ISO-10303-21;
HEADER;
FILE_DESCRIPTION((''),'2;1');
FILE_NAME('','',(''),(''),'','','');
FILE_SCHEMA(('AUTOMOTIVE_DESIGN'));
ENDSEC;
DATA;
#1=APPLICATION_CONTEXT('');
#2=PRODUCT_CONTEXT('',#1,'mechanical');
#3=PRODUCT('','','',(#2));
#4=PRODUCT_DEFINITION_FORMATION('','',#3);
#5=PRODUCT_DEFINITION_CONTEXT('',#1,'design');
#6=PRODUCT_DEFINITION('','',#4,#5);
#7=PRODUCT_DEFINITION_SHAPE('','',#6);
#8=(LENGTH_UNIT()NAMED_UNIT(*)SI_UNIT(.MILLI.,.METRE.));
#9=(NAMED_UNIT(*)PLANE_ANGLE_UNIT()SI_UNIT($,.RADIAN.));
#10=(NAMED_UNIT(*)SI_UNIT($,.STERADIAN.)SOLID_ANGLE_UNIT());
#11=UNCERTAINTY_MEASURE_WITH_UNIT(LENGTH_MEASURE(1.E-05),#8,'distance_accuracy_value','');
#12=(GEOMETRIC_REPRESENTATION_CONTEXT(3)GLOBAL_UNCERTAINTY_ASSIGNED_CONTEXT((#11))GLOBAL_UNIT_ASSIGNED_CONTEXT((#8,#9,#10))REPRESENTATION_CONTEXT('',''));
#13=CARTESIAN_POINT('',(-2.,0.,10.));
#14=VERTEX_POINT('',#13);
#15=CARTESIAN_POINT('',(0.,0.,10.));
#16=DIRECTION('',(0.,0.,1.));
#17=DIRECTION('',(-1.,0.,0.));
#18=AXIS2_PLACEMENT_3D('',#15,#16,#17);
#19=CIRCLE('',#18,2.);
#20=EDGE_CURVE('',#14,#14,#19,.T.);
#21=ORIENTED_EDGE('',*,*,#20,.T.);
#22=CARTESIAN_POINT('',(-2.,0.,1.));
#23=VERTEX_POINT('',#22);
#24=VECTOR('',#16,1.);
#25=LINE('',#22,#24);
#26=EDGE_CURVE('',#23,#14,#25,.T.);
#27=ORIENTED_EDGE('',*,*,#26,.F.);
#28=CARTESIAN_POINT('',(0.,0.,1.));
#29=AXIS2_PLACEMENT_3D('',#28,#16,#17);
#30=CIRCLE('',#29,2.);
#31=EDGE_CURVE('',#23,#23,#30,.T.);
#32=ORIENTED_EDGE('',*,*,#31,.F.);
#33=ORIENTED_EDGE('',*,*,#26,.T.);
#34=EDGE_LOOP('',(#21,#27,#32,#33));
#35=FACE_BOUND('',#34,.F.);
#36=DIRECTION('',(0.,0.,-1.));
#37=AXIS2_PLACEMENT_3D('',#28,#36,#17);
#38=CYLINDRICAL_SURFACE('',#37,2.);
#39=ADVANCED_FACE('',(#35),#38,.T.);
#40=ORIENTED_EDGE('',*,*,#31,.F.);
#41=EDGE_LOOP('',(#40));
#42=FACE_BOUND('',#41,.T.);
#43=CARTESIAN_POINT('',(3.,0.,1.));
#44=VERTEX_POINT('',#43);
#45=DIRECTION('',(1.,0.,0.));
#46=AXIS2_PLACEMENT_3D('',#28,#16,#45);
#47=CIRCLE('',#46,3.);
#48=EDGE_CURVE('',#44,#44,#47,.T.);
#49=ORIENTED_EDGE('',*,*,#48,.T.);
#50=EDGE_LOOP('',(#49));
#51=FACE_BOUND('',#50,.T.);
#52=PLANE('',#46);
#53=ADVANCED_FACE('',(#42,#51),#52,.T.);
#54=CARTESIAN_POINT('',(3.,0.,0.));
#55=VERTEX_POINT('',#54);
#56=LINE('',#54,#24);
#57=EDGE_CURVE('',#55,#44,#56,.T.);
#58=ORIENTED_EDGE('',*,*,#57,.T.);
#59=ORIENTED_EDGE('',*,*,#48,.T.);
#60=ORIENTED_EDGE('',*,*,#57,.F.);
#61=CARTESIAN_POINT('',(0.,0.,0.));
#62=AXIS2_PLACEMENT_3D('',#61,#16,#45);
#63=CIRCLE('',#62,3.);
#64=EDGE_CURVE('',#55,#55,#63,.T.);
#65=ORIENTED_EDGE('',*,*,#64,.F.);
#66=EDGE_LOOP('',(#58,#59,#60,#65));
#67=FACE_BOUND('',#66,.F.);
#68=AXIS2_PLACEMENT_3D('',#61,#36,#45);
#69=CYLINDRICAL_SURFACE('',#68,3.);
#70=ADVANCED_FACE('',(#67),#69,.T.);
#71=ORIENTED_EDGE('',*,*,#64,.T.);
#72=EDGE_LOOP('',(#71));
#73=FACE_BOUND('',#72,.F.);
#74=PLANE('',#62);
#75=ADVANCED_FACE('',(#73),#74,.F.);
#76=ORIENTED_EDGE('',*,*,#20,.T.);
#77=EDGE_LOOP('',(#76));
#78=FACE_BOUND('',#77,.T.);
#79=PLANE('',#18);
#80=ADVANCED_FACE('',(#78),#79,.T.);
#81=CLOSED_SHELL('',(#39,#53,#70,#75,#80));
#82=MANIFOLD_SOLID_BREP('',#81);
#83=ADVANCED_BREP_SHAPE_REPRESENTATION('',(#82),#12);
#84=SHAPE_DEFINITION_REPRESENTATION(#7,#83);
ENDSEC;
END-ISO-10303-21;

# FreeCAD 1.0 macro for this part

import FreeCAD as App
import Part
import Sketcher

V = App.Vector

doc = App.newDocument("Part")
params = doc.addObject("Spreadsheet::Sheet", "Params")
for row, (alias, value) in enumerate([
    ("sketch1_diameter", "6 mm"),
    ("pad1_length", "1 mm"),
    ("sketch2_diameter", "4 mm"),
    ("pad2_length", "9 mm"),
], start=1):
    params.set(f"A{row}", alias)
    params.set(f"B{row}", "=" + value)
    params.setAlias(f"B{row}", alias)

body = doc.addObject("PartDesign::Body", "Body")

sketch1 = doc.addObject("Sketcher::SketchObject", "Sketch")
body.addObject(sketch1)
sketch1.AttachmentSupport = (doc.XY_Plane, [""])
sketch1.MapMode = "FlatFace"
sketch1.addGeometry(Part.Circle(V(0, 0, 0), V(0, 0, 1), 3), False)
sketch1.addConstraint(Sketcher.Constraint("Coincident", 0, 3, -1, 1))
sketch1.addConstraint(Sketcher.Constraint("Diameter", 0, 6.0))
sketch1.setExpression("Constraints[1]", "Params.sketch1_diameter")
pad1 = doc.addObject("PartDesign::Pad", "Pad")
body.addObject(pad1)
pad1.Profile = sketch1
pad1.setExpression("Length", "Params.pad1_length")

sketch2 = doc.addObject("Sketcher::SketchObject", "Sketch001")
body.addObject(sketch2)
sketch2.AttachmentSupport = (doc.XY_Plane, [""])
sketch2.MapMode = "FlatFace"
sketch2.AttachmentOffset = App.Placement(V(0, 0, 1), App.Rotation())
sketch2.addGeometry(Part.Circle(V(0, 0, 0), V(0, 0, 1), 2), False)
sketch2.addConstraint(Sketcher.Constraint("Coincident", 0, 3, -1, 1))
sketch2.addConstraint(Sketcher.Constraint("Diameter", 0, 4.0))
sketch2.setExpression("Constraints[1]", "Params.sketch2_diameter")
pad2 = doc.addObject("PartDesign::Pad", "Pad001")
body.addObject(pad2)
pad2.Profile = sketch2
pad2.setExpression("Length", "Params.pad2_length")

doc.recompute()
